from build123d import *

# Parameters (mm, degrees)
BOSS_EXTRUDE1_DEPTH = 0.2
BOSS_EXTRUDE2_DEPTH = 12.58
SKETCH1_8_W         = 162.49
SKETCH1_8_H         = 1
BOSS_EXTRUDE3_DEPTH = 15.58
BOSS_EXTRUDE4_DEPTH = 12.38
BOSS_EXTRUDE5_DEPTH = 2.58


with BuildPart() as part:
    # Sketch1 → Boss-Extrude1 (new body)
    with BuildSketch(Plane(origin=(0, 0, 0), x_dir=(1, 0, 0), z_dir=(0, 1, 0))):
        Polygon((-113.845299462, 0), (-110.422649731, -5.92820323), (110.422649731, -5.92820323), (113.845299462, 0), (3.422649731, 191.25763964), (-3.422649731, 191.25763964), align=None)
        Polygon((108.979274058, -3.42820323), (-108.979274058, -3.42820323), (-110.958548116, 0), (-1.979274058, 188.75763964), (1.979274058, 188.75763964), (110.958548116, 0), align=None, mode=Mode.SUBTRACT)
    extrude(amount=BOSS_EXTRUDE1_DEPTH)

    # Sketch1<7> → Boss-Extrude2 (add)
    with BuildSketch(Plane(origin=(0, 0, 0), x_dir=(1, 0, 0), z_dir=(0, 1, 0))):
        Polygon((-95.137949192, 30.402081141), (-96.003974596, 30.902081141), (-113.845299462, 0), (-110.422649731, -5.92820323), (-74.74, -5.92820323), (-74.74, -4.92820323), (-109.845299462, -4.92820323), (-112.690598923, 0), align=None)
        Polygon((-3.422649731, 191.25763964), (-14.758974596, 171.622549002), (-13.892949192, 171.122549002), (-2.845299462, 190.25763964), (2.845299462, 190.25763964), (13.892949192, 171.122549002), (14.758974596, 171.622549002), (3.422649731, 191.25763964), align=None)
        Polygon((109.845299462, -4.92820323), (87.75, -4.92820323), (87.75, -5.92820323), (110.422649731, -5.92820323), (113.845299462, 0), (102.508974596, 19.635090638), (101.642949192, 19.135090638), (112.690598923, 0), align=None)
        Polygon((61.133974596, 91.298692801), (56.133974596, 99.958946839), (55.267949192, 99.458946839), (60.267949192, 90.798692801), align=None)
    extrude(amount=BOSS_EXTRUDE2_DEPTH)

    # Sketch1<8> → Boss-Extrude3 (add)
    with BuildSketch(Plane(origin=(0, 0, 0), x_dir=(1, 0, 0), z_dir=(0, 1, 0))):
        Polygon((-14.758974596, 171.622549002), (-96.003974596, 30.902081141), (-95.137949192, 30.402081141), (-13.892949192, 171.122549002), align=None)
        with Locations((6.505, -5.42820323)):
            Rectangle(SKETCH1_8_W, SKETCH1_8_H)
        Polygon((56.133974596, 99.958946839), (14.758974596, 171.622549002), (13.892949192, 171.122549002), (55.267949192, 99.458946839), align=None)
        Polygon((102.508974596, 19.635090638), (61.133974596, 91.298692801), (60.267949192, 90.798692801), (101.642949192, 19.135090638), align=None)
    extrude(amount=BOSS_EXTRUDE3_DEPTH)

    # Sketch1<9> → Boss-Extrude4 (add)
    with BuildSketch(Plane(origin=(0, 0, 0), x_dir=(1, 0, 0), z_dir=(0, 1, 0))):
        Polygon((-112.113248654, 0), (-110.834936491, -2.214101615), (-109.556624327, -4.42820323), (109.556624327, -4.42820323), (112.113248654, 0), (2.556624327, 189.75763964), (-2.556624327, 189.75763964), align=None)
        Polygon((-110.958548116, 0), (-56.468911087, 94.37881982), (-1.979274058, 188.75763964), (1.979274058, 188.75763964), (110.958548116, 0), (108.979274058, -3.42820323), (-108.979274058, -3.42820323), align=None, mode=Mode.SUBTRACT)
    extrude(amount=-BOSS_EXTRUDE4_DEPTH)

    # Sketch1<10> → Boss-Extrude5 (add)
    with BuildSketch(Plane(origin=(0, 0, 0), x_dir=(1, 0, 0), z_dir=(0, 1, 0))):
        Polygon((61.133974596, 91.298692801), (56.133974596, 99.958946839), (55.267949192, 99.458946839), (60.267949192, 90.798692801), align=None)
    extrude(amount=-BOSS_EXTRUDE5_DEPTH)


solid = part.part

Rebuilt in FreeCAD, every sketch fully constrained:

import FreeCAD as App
import Part
import Sketcher
from FreeCAD import Vector
Q = App.Units.Quantity


def add_polygon(sketch, points):
    """Adds a closed chain of lines whose ends are joined by coincident constraints."""
    first, n = sketch.GeometryCount, len(points)
    for a, b in zip(points, points[1:] + points[:1]):
        sketch.addGeometry(Part.LineSegment(App.Vector(*a, 0), App.Vector(*b, 0)), False)
    for i in range(n):
        sketch.addConstraint(Sketcher.Constraint("Coincident", first + i, 2, first + (i + 1) % n, 1))

doc = App.newDocument("Part")
body = doc.addObject("PartDesign::Body", "Body")

sketch1 = body.newObject("Sketcher::SketchObject", "Sketch")
sketch1.AttachmentSupport = (doc.getObject("XZ_Plane"), [""])
sketch1.MapMode = "FlatFace"
add_polygon(sketch1, [(-113.8, 0), (-110.4, 5.9), (110.4, 5.9), (113.8, 0), (3.4, -191.3), (-3.4, -191.3)])
add_polygon(sketch1, [(111, 0), (109, 3.4), (-109, 3.4), (-111, 0), (-2, -188.8), (2, -188.8)])
sketch1.addConstraint(Sketcher.Constraint("Horizontal", 1))
sketch1.addConstraint(Sketcher.Constraint("Horizontal", 4))
sketch1.addConstraint(Sketcher.Constraint("Horizontal", 7))
sketch1.addConstraint(Sketcher.Constraint("Horizontal", 10))
sketch1.addConstraint(Sketcher.Constraint("Symmetric", 2, 2, 5, 2, -1, 1))
sketch1.addConstraint(Sketcher.Constraint("Symmetric", 8, 2, 11, 2, -1, 1))
sketch1.addConstraint(Sketcher.Constraint("PointOnObject", 2, 2, -1))
sketch1.addConstraint(Sketcher.Constraint("PointOnObject", 8, 2, -1))
sketch1.addConstraint(Sketcher.Constraint("Parallel", 0, 3))
sketch1.addConstraint(Sketcher.Constraint("Parallel", 2, 5))
sketch1.addConstraint(Sketcher.Constraint("Parallel", 5, 6))
sketch1.addConstraint(Sketcher.Constraint("Parallel", 3, 8))
sketch1.addConstraint(Sketcher.Constraint("Parallel", 6, 9))
sketch1.addConstraint(Sketcher.Constraint("Parallel", 8, 11))
sketch1.addConstraint(Sketcher.Constraint("Equal", 0, 2))
sketch1.addConstraint(Sketcher.Constraint("Angle", 0, Q("60 deg")))
sketch1.addConstraint(Sketcher.Constraint("DistanceX", 3, 2, 1, 2, Q("107 mm")))
sketch1.addConstraint(Sketcher.Constraint("DistanceX", 7, 2, 9, 2, Q("107 mm")))
sketch1.addConstraint(Sketcher.Constraint("DistanceY", 6, 2, 1, 2, Q("2.5 mm")))
sketch1.addConstraint(Sketcher.Constraint("DistanceX", 1, 1, 1, 2, Q("220.845299 mm")))
sketch1.addConstraint(Sketcher.Constraint("Distance", 0, Q("6.845299 mm")))
sketch1.addConstraint(Sketcher.Constraint("DistanceX", 7, 2, 7, 1, Q("217.958548 mm")))
pad1 = body.newObject("PartDesign::Pad", "Pad")
pad1.Profile = sketch1
pad1.Length = 0.2
pad1.Reversed = True

sketch2 = body.newObject("Sketcher::SketchObject", "Sketch001")
sketch2.AttachmentSupport = (doc.getObject("XZ_Plane"), [""])
sketch2.MapMode = "FlatFace"
add_polygon(sketch2, [(-95.1, -30.4), (-96, -30.9), (-113.8, 0), (-110.4, 5.9), (-74.7, 5.9), (-74.7, 4.9), (-109.8, 4.9), (-112.7, 0)])
add_polygon(sketch2, [(-3.4, -191.3), (-14.8, -171.6), (-13.9, -171.1), (-2.8, -190.3), (2.8, -190.3), (13.9, -171.1), (14.8, -171.6), (3.4, -191.3)])
add_polygon(sketch2, [(109.8, 4.9), (87.8, 4.9), (87.8, 5.9), (110.4, 5.9), (113.8, 0), (102.5, -19.6), (101.6, -19.1), (112.7, 0)])
add_polygon(sketch2, [(61.1, -91.3), (56.1, -100), (55.3, -99.5), (60.3, -90.8)])
sketch2.addConstraint(Sketcher.Constraint("Horizontal", 3))
sketch2.addConstraint(Sketcher.Constraint("Vertical", 4))
sketch2.addConstraint(Sketcher.Constraint("Horizontal", 5))
sketch2.addConstraint(Sketcher.Constraint("Horizontal", 11))
sketch2.addConstraint(Sketcher.Constraint("Horizontal", 15))
sketch2.addConstraint(Sketcher.Constraint("Horizontal", 16))
sketch2.addConstraint(Sketcher.Constraint("Vertical", 17))
sketch2.addConstraint(Sketcher.Constraint("Horizontal", 18))
sketch2.addConstraint(Sketcher.Constraint("Symmetric", 1, 2, 19, 2, -1, 1))
sketch2.addConstraint(Sketcher.Constraint("Symmetric", 6, 2, 22, 2, -1, 1))
sketch2.addConstraint(Sketcher.Constraint("Symmetric", 9, 2, 12, 2, -2))
sketch2.addConstraint(Sketcher.Constraint("Symmetric", 8, 2, 13, 2, -2))
sketch2.addConstraint(Sketcher.Constraint("Symmetric", 2, 2, 18, 2, -2))
sketch2.addConstraint(Sketcher.Constraint("Symmetric", 5, 2, 23, 2, -2))
sketch2.addConstraint(Sketcher.Constraint("PointOnObject", 1, 2, -1))
sketch2.addConstraint(Sketcher.Constraint("PointOnObject", 6, 2, -1))
sketch2.addConstraint(Sketcher.Constraint("Perpendicular", 0, 1))
sketch2.addConstraint(Sketcher.Constraint("Parallel", 2, 6))
sketch2.addConstraint(Sketcher.Constraint("Parallel", 1, 7))
sketch2.addConstraint(Sketcher.Constraint("Parallel", 7, 8))
sketch2.addConstraint(Sketcher.Constraint("Perpendicular", 8, 9))
sketch2.addConstraint(Sketcher.Constraint("Perpendicular", 9, 10))
sketch2.addConstraint(Sketcher.Constraint("Parallel", 6, 12))
sketch2.addConstraint(Sketcher.Constraint("Perpendicular", 12, 13))
sketch2.addConstraint(Sketcher.Constraint("Perpendicular", 13, 14))
sketch2.addConstraint(Sketcher.Constraint("Parallel", 14, 20))
sketch2.addConstraint(Sketcher.Constraint("Perpendicular", 20, 21))
sketch2.addConstraint(Sketcher.Constraint("Perpendicular", 21, 22))
sketch2.addConstraint(Sketcher.Constraint("Parallel", 22, 24))
sketch2.addConstraint(Sketcher.Constraint("Perpendicular", 24, 25))
sketch2.addConstraint(Sketcher.Constraint("Perpendicular", 25, 26))
sketch2.addConstraint(Sketcher.Constraint("Perpendicular", 26, 27))
sketch2.addConstraint(Sketcher.Constraint("Equal", 0, 9))
sketch2.addConstraint(Sketcher.Constraint("Equal", 14, 20))
sketch2.addConstraint(Sketcher.Constraint("Equal", 12, 22))
sketch2.addConstraint(Sketcher.Constraint("Equal", 21, 25))
sketch2.addConstraint(Sketcher.Constraint("DistanceY", 4, 2, 4, 1, Q("1 mm")))
sketch2.addConstraint(Sketcher.Constraint("Angle", 0, Q("-150 deg")))
sketch2.addConstraint(Sketcher.Constraint("Distance", 0, Q("1 mm")))
sketch2.addConstraint(Sketcher.Constraint("Distance", 24, Q("10 mm")))
sketch2.addConstraint(Sketcher.Constraint("DistanceX", 1, 2, 5, 2, Q("4 mm")))
sketch2.addConstraint(Sketcher.Constraint("DistanceX", 3, 2, -1, 1, Q("74.74 mm")))
sketch2.addConstraint(Sketcher.Constraint("DistanceX", -1, 1, 16, 2, Q("87.75 mm")))
sketch2.addConstraint(Sketcher.Constraint("DistanceX", 13, 2, 20, 2, Q("87.75 mm")))
sketch2.addConstraint(Sketcher.Constraint("DistanceX", 5, 2, 5, 1, Q("35.105299 mm")))
sketch2.addConstraint(Sketcher.Constraint("DistanceX", 11, 1, 11, 2, Q("5.690599 mm")))
sketch2.addConstraint(Sketcher.Constraint("DistanceX", 0, 2, 8, 2, Q("81.245 mm")))
sketch2.addConstraint(Sketcher.Constraint("DistanceX", 13, 2, 24, 2, Q("41.375 mm")))
sketch2.addConstraint(Sketcher.Constraint("DistanceY", 8, 2, -1, 1, Q("171.622549 mm")))
sketch2.addConstraint(Sketcher.Constraint("DistanceY", 24, 2, -1, 1, Q("99.958947 mm")))
pad2 = body.newObject("PartDesign::Pad", "Pad001")
pad2.Profile = sketch2
pad2.Length = 12.58
pad2.Reversed = True

sketch3 = body.newObject("Sketcher::SketchObject", "Sketch002")
sketch3.AttachmentSupport = (doc.getObject("XZ_Plane"), [""])
sketch3.MapMode = "FlatFace"
add_polygon(sketch3, [(-14.8, -171.6), (-96, -30.9), (-95.1, -30.4), (-13.9, -171.1)])
add_polygon(sketch3, [(-74.7, 4.9), (-74.7, 5.9), (87.8, 5.9), (87.8, 4.9)])
add_polygon(sketch3, [(56.1, -100), (14.8, -171.6), (13.9, -171.1), (55.3, -99.5)])
add_polygon(sketch3, [(102.5, -19.6), (61.1, -91.3), (60.3, -90.8), (101.6, -19.1)])
sketch3.addConstraint(Sketcher.Constraint("Vertical", 4))
sketch3.addConstraint(Sketcher.Constraint("Horizontal", 5))
sketch3.addConstraint(Sketcher.Constraint("Vertical", 6))
sketch3.addConstraint(Sketcher.Constraint("Horizontal", 7))
sketch3.addConstraint(Sketcher.Constraint("Symmetric", 3, 2, 8, 2, -2))
sketch3.addConstraint(Sketcher.Constraint("Symmetric", 2, 2, 9, 2, -2))
sketch3.addConstraint(Sketcher.Constraint("Perpendicular", 0, 1))
sketch3.addConstraint(Sketcher.Constraint("Perpendicular", 1, 2))
sketch3.addConstraint(Sketcher.Constraint("Perpendicular", 2, 3))
sketch3.addConstraint(Sketcher.Constraint("Perpendicular", 8, 9))
sketch3.addConstraint(Sketcher.Constraint("Perpendicular", 9, 10))
sketch3.addConstraint(Sketcher.Constraint("Perpendicular", 10, 11))
sketch3.addConstraint(Sketcher.Constraint("Perpendicular", 11, 12))
sketch3.addConstraint(Sketcher.Constraint("Perpendicular", 12, 13))
sketch3.addConstraint(Sketcher.Constraint("Perpendicular", 13, 14))
sketch3.addConstraint(Sketcher.Constraint("Perpendicular", 14, 15))
sketch3.addConstraint(Sketcher.Constraint("Equal", 10, 12))
sketch3.addConstraint(Sketcher.Constraint("Equal", 11, 13))
sketch3.addConstraint(Sketcher.Constraint("DistanceY", 4, 1, 4, 2, Q("1 mm")))
sketch3.addConstraint(Sketcher.Constraint("Angle", 0, Q("120 deg")))
sketch3.addConstraint(Sketcher.Constraint("Distance", 1, Q("1 mm")))
sketch3.addConstraint(Sketcher.Constraint("DistanceX", 11, 2, 12, 2, Q("5 mm")))
sketch3.addConstraint(Sketcher.Constraint("DistanceX", 5, 1, 5, 2, Q("162.49 mm")))
sketch3.addConstraint(Sketcher.Constraint("Distance", 0, Q("162.49 mm")))
sketch3.addConstraint(Sketcher.Constraint("Distance", 8, Q("82.75 mm")))
sketch3.addConstraint(Sketcher.Constraint("DistanceX", 4, 2, -1, 1, Q("74.74 mm")))
sketch3.addConstraint(Sketcher.Constraint("DistanceX", 2, 2, 9, 2, Q("27.785898 mm")))
sketch3.addConstraint(Sketcher.Constraint("DistanceY", 0, 2, -1, 1, Q("30.902081 mm")))
sketch3.addConstraint(Sketcher.Constraint("DistanceY", 14, 2, -1, 1, Q("19.135091 mm")))
sketch3.addConstraint(Sketcher.Constraint("DistanceY", 10, 2, 6, 2, Q("104.38715 mm")))
pad3 = body.newObject("PartDesign::Pad", "Pad002")
pad3.Profile = sketch3
pad3.Length = 15.58
pad3.Reversed = True

sketch4 = body.newObject("Sketcher::SketchObject", "Sketch003")
sketch4.AttachmentSupport = (doc.getObject("XZ_Plane"), [""])
sketch4.MapMode = "FlatFace"
add_polygon(sketch4, [(-112.1, 0), (-110.8, 2.2), (-109.6, 4.4), (109.6, 4.4), (112.1, 0), (2.6, -189.8), (-2.6, -189.8)])
add_polygon(sketch4, [(-109, 3.4), (-111, 0), (-2, -188.8), (2, -188.8), (111, 0), (109, 3.4)])
sketch4.addConstraint(Sketcher.Constraint("Horizontal", 2))
sketch4.addConstraint(Sketcher.Constraint("Horizontal", 5))
sketch4.addConstraint(Sketcher.Constraint("Horizontal", 9))
sketch4.addConstraint(Sketcher.Constraint("Horizontal", 12))
sketch4.addConstraint(Sketcher.Constraint("Symmetric", 3, 2, 6, 2, -1, 1))
sketch4.addConstraint(Sketcher.Constraint("Symmetric", 7, 2, 10, 2, -1, 1))
sketch4.addConstraint(Sketcher.Constraint("PointOnObject", 3, 2, -1))
sketch4.addConstraint(Sketcher.Constraint("PointOnObject", 7, 2, -1))
sketch4.addConstraint(Sketcher.Constraint("Parallel", 0, 1))
sketch4.addConstraint(Sketcher.Constraint("Parallel", 1, 4))
sketch4.addConstraint(Sketcher.Constraint("Parallel", 3, 6))
sketch4.addConstraint(Sketcher.Constraint("Parallel", 4, 7))
sketch4.addConstraint(Sketcher.Constraint("Parallel", 6, 8))
sketch4.addConstraint(Sketcher.Constraint("Parallel", 7, 10))
sketch4.addConstraint(Sketcher.Constraint("Parallel", 8, 11))
sketch4.addConstraint(Sketcher.Constraint("Equal", 0, 1))
sketch4.addConstraint(Sketcher.Constraint("Equal", 4, 6))
sketch4.addConstraint(Sketcher.Constraint("Angle", 0, Q("60 deg")))
sketch4.addConstraint(Sketcher.Constraint("DistanceX", 4, 2, 2, 2, Q("107 mm")))
sketch4.addConstraint(Sketcher.Constraint("DistanceY", 5, 2, 8, 2, Q("1 mm")))
sketch4.addConstraint(Sketcher.Constraint("DistanceY", 11, 2, 2, 2, Q("1 mm")))
sketch4.addConstraint(Sketcher.Constraint("DistanceX", 2, 1, 2, 2, Q("219.113249 mm")))
sketch4.addConstraint(Sketcher.Constraint("DistanceX", 9, 1, 9, 2, Q("3.958548 mm")))
sketch4.addConstraint(Sketcher.Constraint("DistanceY", -1, 1, 0, 2, Q("2.214102 mm")))
pad4 = body.newObject("PartDesign::Pad", "Pad003")
pad4.Profile = sketch4
pad4.Length = 12.38

sketch5 = body.newObject("Sketcher::SketchObject", "Sketch004")
sketch5.AttachmentSupport = (doc.getObject("XZ_Plane"), [""])
sketch5.MapMode = "FlatFace"
add_polygon(sketch5, [(61.1, -91.3), (56.1, -100), (55.3, -99.5), (60.3, -90.8)])
sketch5.addConstraint(Sketcher.Constraint("Perpendicular", 0, 1))
sketch5.addConstraint(Sketcher.Constraint("Perpendicular", 1, 2))
sketch5.addConstraint(Sketcher.Constraint("Perpendicular", 2, 3))
sketch5.addConstraint(Sketcher.Constraint("Angle", 0, Q("-120 deg")))
sketch5.addConstraint(Sketcher.Constraint("Distance", 0, Q("10 mm")))
sketch5.addConstraint(Sketcher.Constraint("Distance", 1, Q("1 mm")))
sketch5.addConstraint(Sketcher.Constraint("DistanceX", -1, 1, 1, 2, Q("55.267949 mm")))
sketch5.addConstraint(Sketcher.Constraint("DistanceY", 0, 2, -1, 1, Q("99.958947 mm")))
pad5 = body.newObject("PartDesign::Pad", "Pad004")
pad5.Profile = sketch5
pad5.Length = 2.58

doc.recompute()
